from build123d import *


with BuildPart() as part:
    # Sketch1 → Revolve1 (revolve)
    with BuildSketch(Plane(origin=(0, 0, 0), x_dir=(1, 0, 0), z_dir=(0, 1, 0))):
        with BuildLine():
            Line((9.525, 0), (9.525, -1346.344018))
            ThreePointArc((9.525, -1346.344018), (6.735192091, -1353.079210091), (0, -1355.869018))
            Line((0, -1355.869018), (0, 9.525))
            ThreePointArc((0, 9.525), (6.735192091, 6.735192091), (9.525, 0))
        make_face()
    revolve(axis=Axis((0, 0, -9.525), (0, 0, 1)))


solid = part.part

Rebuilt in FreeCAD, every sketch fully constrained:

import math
import FreeCAD as App
import Part
import Sketcher
from FreeCAD import Vector
Q = App.Units.Quantity

doc = App.newDocument("Part")
body = doc.addObject("PartDesign::Body", "Body")

# Sketch on XZ plane
sketch1 = body.newObject("Sketcher::SketchObject", "Sketch")
sketch1.AttachmentSupport = (doc.getObject("XZ_Plane"), [""])
sketch1.MapMode = "FlatFace"
sketch1.addGeometry(Part.LineSegment(Vector(10, 1346, 0), Vector(10, 0, 0)), False)
sketch1.addGeometry(Part.ArcOfCircle(Part.Circle(Vector(0, 0, 0), Vector(0, 0, 1), 10), math.radians(-90), math.radians(0)), False)
sketch1.addGeometry(Part.LineSegment(Vector(0, -10, 0), Vector(0, 1356, 0)), False)
sketch1.addGeometry(Part.ArcOfCircle(Part.Circle(Vector(0, 1346, 0), Vector(0, 0, 1), 10), math.radians(0), math.radians(90)), False)
sketch1.addConstraint(Sketcher.Constraint("Tangent", 0, 2, 1, 2))
sketch1.addConstraint(Sketcher.Constraint("Coincident", 1, 1, 2, 1))
sketch1.addConstraint(Sketcher.Constraint("Coincident", 2, 2, 3, 2))
sketch1.addConstraint(Sketcher.Constraint("Tangent", 3, 1, 0, 1))
sketch1.addConstraint(Sketcher.Constraint("Vertical", 0))
sketch1.addConstraint(Sketcher.Constraint("Vertical", 2))
sketch1.addConstraint(Sketcher.Constraint("Coincident", 1, 3, -1, 1))
sketch1.addConstraint(Sketcher.Constraint("Equal", 1, 3))
sketch1.addConstraint(Sketcher.Constraint("PointOnObject", 1, 1, -2))
sketch1.addConstraint(Sketcher.Constraint("Radius", 1, Q("0.375 in")))
sketch1.addConstraint(Sketcher.Constraint("DistanceY", 0, 2, 0, 1, 1346.344018))
revolution = body.newObject("PartDesign::Revolution", "Revolution")
revolution.Profile = sketch1
revolution.ReferenceAxis = (sketch1, ["V_Axis"])
revolution.Angle = 360

doc.recompute()
